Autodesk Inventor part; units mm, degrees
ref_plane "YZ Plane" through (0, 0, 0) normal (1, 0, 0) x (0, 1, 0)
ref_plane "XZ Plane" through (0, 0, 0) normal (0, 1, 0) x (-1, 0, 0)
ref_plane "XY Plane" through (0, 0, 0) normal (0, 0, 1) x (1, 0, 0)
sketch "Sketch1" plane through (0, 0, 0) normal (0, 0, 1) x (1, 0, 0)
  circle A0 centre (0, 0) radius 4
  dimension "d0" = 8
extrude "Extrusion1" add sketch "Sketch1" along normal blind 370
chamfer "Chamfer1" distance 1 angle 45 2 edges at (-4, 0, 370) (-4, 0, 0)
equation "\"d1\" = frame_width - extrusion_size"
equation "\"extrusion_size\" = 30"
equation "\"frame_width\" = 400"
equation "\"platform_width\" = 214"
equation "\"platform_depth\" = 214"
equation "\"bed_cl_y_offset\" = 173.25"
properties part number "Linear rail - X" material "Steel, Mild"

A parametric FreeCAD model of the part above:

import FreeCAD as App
import Part
import Sketcher
Q = App.Units.Quantity


def edges_at(feature, points):
    """Names of the edges that pass closest to the given points."""
    edges = feature.Shape.Edges
    near = lambda p: min(range(len(edges)), key=lambda i: edges[i].distToShape(Part.Vertex(*p))[0])
    return sorted({f"Edge{near(p) + 1}" for p in points})

doc = App.newDocument("Part")
body = doc.addObject("PartDesign::Body", "Body")

sketch1 = doc.addObject("Sketcher::SketchObject", "Sketch")
body.addObject(sketch1)
sketch1.AttachmentSupport = (doc.XY_Plane, [""])
sketch1.MapMode = "FlatFace"
sketch1.addGeometry(Part.Circle(App.Vector(0, 0, 0), App.Vector(0, 0, 1), 4), False)
sketch1.addConstraint([
    Sketcher.Constraint("Coincident", 0, 3, -1, 1),
    Sketcher.Constraint("Diameter", 0, Q("8 mm")),
])
pad1 = doc.addObject("PartDesign::Pad", "Pad")
body.addObject(pad1)
pad1.Profile = sketch1
pad1.Length = 370
doc.recompute()

chamfer = doc.addObject("PartDesign::Chamfer", "Chamfer")
body.addObject(chamfer)
chamfer.Base = (pad1, edges_at(pad1, [(-4, 0, 370), (-4, 0, 0)]))
chamfer.Size = 1

doc.recompute()
